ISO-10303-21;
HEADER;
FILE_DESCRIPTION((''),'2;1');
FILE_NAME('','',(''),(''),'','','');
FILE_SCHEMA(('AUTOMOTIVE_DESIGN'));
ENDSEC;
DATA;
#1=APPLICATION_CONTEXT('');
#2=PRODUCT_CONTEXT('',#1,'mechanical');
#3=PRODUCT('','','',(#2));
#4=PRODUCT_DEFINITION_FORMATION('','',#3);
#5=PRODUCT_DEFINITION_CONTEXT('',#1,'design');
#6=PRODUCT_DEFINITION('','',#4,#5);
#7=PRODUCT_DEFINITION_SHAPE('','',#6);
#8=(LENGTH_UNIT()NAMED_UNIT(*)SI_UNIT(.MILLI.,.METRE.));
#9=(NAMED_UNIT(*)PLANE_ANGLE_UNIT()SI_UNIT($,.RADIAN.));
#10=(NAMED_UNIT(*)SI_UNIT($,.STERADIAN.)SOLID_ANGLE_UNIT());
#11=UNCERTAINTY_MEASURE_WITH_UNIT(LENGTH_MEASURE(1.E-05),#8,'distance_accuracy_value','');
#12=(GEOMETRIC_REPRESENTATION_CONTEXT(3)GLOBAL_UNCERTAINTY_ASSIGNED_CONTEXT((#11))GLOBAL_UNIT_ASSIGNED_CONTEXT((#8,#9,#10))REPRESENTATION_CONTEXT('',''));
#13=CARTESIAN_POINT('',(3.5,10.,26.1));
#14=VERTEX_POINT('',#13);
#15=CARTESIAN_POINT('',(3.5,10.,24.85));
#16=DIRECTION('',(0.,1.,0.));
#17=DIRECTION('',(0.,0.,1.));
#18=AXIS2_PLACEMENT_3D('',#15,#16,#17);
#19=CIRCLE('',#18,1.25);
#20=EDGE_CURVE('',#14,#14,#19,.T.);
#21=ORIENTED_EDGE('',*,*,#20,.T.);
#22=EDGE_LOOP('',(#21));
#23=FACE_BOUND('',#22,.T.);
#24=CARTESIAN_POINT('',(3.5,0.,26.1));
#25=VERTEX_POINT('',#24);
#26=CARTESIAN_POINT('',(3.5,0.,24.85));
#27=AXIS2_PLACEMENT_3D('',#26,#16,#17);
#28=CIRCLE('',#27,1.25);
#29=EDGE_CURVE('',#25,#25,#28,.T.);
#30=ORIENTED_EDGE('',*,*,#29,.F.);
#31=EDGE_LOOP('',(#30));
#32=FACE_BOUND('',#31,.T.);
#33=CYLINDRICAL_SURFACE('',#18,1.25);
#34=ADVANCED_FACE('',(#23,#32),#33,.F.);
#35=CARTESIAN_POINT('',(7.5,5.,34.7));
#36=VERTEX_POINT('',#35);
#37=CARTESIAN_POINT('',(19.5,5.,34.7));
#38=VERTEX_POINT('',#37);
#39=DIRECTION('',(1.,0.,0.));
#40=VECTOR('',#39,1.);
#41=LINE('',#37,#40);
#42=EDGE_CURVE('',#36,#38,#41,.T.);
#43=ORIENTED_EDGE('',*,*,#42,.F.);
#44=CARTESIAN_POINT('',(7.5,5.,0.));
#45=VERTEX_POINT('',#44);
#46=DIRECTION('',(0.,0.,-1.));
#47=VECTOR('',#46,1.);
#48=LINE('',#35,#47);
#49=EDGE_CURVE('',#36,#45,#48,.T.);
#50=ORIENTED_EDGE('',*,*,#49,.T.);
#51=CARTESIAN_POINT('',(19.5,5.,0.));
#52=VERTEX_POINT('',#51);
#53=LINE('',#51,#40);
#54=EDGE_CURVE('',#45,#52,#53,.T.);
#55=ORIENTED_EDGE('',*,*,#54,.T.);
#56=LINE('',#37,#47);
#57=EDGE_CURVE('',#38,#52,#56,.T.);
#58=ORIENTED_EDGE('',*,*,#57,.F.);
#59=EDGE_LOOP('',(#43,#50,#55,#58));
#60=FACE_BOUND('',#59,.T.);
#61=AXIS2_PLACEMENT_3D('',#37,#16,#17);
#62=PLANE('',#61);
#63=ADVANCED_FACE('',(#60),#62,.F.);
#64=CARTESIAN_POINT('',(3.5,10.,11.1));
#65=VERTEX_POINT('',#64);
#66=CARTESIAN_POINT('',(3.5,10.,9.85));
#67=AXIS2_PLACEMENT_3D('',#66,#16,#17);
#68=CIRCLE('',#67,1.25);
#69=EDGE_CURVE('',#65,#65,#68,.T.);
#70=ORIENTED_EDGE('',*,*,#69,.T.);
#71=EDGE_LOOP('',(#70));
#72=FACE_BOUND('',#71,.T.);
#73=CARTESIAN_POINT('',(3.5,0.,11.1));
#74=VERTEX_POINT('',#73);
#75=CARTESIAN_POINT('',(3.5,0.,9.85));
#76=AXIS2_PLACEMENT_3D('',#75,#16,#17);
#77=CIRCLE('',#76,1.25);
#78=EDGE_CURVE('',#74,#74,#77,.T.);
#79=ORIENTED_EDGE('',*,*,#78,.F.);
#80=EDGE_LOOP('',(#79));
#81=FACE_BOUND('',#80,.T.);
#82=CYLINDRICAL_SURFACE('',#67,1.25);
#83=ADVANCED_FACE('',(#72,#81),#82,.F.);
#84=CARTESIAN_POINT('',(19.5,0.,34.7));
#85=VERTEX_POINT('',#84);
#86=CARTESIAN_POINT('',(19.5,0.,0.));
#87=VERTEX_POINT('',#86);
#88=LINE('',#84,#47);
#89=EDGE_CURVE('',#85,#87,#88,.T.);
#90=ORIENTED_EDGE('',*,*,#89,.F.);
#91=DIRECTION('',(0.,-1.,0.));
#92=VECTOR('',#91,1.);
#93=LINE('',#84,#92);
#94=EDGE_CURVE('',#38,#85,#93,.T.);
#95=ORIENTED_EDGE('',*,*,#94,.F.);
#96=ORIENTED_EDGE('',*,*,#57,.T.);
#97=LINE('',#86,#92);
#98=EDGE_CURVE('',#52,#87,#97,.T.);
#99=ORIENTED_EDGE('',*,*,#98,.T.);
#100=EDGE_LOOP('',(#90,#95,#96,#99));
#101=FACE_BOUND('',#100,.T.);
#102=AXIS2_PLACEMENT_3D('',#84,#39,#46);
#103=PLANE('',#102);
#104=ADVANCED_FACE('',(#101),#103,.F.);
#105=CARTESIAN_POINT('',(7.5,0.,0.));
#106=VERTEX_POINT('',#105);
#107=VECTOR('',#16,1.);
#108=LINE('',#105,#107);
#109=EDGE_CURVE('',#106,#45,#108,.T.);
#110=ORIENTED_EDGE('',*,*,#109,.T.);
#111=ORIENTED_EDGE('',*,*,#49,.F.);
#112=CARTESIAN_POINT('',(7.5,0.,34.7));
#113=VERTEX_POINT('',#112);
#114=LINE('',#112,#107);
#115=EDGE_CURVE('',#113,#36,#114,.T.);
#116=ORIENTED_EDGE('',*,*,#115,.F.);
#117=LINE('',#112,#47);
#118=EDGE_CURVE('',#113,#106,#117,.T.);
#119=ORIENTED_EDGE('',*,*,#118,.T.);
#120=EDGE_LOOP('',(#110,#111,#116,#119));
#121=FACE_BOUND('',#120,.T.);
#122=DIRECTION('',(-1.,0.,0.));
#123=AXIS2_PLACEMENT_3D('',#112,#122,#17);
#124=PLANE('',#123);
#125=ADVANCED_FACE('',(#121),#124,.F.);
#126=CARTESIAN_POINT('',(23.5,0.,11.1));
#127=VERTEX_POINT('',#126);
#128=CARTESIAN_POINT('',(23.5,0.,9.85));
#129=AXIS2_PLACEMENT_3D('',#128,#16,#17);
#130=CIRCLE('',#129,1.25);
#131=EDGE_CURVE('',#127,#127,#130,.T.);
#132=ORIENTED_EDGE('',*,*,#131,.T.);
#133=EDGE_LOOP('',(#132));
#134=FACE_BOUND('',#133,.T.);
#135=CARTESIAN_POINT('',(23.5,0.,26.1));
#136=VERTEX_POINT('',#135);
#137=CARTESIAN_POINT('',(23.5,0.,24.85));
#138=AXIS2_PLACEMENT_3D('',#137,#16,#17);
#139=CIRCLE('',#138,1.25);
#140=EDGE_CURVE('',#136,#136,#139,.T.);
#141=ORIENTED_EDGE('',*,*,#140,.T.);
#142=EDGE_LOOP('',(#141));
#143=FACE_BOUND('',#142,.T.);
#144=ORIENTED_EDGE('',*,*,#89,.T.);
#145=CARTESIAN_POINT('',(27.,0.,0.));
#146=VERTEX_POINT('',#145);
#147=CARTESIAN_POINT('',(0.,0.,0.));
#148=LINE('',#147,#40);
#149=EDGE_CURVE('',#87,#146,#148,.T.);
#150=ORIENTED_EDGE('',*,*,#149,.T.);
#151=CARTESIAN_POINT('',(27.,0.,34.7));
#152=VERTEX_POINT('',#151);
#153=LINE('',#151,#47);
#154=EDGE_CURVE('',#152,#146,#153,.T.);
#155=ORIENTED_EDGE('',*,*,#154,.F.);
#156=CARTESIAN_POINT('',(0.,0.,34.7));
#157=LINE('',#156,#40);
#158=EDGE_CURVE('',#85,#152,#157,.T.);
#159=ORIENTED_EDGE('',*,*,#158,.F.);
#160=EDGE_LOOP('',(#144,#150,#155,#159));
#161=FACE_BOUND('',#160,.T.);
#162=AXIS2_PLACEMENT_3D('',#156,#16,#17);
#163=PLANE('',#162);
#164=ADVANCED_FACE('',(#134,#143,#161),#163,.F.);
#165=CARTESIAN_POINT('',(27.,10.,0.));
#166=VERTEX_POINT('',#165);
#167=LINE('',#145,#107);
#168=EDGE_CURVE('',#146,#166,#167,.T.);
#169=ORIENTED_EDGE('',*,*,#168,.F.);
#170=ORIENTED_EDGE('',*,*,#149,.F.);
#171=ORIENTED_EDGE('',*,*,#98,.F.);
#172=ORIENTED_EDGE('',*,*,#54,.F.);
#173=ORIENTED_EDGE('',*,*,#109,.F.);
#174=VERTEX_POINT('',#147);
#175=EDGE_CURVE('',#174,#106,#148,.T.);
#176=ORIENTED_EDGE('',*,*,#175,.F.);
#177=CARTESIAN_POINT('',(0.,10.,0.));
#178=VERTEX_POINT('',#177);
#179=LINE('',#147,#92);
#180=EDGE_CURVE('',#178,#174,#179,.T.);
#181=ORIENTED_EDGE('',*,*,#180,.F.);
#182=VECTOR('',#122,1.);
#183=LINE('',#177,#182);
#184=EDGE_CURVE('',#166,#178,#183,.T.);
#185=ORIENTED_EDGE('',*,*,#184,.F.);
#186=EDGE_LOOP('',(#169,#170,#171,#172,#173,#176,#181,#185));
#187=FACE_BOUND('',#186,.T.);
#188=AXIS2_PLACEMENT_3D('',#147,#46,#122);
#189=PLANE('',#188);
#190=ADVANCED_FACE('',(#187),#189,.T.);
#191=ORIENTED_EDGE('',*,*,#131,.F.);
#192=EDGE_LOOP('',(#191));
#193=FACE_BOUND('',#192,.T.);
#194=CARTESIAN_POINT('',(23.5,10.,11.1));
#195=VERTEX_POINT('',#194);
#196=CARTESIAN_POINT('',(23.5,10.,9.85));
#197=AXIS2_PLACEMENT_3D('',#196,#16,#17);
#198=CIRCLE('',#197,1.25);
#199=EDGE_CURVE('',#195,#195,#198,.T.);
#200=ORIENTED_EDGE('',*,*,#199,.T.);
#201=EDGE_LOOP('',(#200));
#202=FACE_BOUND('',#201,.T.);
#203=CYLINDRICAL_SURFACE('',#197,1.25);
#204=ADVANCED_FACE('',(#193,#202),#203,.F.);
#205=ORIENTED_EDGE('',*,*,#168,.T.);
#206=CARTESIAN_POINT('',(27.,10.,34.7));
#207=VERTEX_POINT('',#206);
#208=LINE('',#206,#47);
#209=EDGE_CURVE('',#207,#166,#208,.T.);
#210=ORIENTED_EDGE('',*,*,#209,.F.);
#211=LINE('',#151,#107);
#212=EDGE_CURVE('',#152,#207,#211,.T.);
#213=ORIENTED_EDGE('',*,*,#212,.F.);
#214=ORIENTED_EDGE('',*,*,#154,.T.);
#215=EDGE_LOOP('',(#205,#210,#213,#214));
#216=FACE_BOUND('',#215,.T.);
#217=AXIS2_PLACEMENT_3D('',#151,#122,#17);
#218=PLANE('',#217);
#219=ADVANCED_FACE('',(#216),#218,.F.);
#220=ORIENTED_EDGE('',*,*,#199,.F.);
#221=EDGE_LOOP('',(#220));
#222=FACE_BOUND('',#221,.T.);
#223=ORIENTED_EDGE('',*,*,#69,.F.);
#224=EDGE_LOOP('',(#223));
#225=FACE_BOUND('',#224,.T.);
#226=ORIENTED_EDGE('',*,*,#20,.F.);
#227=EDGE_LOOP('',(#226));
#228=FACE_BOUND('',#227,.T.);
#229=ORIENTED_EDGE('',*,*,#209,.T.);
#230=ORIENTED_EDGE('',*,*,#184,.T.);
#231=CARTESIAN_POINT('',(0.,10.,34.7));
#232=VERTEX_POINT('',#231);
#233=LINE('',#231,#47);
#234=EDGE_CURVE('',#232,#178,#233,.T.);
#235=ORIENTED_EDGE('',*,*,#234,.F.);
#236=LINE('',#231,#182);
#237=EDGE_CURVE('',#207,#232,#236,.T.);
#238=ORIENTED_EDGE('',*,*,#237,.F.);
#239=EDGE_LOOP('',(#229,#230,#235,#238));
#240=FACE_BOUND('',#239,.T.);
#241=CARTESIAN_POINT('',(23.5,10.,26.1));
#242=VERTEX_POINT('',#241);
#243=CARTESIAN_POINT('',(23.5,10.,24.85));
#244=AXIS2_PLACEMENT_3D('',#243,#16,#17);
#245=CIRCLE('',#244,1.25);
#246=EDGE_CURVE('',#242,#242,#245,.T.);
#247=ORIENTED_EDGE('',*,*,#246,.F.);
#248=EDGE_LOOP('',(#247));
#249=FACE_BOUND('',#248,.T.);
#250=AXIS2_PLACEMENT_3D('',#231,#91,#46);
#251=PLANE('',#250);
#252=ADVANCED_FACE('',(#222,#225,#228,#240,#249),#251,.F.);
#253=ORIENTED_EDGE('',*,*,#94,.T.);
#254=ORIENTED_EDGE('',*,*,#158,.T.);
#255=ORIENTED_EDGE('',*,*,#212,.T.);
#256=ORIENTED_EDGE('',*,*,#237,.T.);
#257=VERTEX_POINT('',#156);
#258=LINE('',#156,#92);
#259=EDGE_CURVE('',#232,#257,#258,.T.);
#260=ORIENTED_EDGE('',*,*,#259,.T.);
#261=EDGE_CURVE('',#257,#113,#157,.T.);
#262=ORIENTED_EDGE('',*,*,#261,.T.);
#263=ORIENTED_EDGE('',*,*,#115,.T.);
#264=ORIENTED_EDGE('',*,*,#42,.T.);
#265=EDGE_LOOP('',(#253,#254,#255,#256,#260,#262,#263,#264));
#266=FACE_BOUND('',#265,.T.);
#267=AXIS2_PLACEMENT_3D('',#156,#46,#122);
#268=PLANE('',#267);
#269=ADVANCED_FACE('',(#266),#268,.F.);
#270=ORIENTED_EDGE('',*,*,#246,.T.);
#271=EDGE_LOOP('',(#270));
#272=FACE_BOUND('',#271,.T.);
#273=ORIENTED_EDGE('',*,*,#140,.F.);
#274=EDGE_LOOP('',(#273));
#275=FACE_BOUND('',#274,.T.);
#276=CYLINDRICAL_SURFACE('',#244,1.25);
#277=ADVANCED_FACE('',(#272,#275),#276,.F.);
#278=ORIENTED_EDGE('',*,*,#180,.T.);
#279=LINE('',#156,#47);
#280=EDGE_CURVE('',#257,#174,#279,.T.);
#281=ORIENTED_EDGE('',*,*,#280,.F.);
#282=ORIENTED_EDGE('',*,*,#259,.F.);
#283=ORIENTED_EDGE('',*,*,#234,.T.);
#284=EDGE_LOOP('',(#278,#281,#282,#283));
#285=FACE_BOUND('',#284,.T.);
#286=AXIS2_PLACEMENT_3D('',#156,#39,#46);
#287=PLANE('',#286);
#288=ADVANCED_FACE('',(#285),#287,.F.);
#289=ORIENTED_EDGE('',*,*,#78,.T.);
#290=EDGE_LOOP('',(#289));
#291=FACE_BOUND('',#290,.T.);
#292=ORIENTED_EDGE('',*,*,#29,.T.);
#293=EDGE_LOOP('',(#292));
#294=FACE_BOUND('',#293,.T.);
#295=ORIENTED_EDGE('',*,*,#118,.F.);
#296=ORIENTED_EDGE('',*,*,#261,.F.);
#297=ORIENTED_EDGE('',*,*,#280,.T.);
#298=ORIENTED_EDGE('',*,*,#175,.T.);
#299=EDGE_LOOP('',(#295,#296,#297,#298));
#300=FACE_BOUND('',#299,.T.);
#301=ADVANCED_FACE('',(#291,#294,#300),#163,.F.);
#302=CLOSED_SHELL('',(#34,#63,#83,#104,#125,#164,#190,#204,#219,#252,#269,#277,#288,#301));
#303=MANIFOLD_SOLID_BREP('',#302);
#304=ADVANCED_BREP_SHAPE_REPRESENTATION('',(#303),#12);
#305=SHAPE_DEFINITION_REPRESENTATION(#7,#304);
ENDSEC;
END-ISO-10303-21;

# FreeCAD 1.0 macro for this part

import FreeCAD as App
import Part
import Sketcher
from FreeCAD import Vector

doc = App.newDocument("Part")
params = doc.addObject("Spreadsheet::Sheet", "Params")
for row, (alias, value) in enumerate([
    ("sketch1_width", "27 mm"),
    ("sketch1_height", "10 mm"),
    ("pad1_length", "34.7 mm"),
    ("sketch2_width", "12 mm"),
    ("sketch2_height", "5 mm"),
    ("sketch3_diameter", "2.5 mm"),
    ("hole_diameter", "2.5 mm"),
], start=1):
    params.set(f"A{row}", alias)
    params.set(f"B{row}", "=" + value)
    params.setAlias(f"B{row}", alias)

body = doc.addObject("PartDesign::Body", "Body")

sketch1 = doc.addObject("Sketcher::SketchObject", "Sketch")
body.addObject(sketch1)
sketch1.AttachmentSupport = (doc.XY_Plane, [""])
sketch1.MapMode = "FlatFace"
sketch1.addGeometry([
    Part.LineSegment(Vector(0, 10, 0), Vector(0, 0, 0)),
    Part.LineSegment(Vector(0, 0, 0), Vector(27, 0, 0)),
    Part.LineSegment(Vector(27, 0, 0), Vector(27, 10, 0)),
    Part.LineSegment(Vector(27, 10, 0), Vector(0, 10, 0)),
], False)
sketch1.addConstraint([
    Sketcher.Constraint("Coincident", 0, 2, 1, 1),
    Sketcher.Constraint("Coincident", 1, 2, 2, 1),
    Sketcher.Constraint("Coincident", 2, 2, 3, 1),
    Sketcher.Constraint("Coincident", 3, 2, 0, 1),
    Sketcher.Constraint("Vertical", 0),
    Sketcher.Constraint("Horizontal", 1),
    Sketcher.Constraint("Vertical", 2),
    Sketcher.Constraint("Horizontal", 3),
    Sketcher.Constraint("Coincident", 0, 2, -1, 1),
    Sketcher.Constraint("DistanceX", 1, 1, 1, 2, 27.0),
    Sketcher.Constraint("DistanceY", 0, 2, 0, 1, 10.0),
])
sketch1.setExpression("Constraints[9]", "Params.sketch1_width")
sketch1.setExpression("Constraints[10]", "Params.sketch1_height")
pad1 = doc.addObject("PartDesign::Pad", "Pad")
body.addObject(pad1)
pad1.Profile = sketch1
pad1.setExpression("Length", "Params.pad1_length")

sketch2 = doc.addObject("Sketcher::SketchObject", "Sketch001")
body.addObject(sketch2)
sketch2.AttachmentSupport = (doc.XY_Plane, [""])
sketch2.MapMode = "FlatFace"
sketch2.addGeometry([
    Part.LineSegment(Vector(20, 5, 0), Vector(20, 0, 0)),
    Part.LineSegment(Vector(20, 0, 0), Vector(8, 0, 0)),
    Part.LineSegment(Vector(8, 0, 0), Vector(8, 5, 0)),
    Part.LineSegment(Vector(8, 5, 0), Vector(20, 5, 0)),
], False)
sketch2.addConstraint([
    Sketcher.Constraint("Coincident", 0, 2, 1, 1),
    Sketcher.Constraint("Coincident", 1, 2, 2, 1),
    Sketcher.Constraint("Coincident", 2, 2, 3, 1),
    Sketcher.Constraint("Coincident", 3, 2, 0, 1),
    Sketcher.Constraint("Vertical", 0),
    Sketcher.Constraint("Horizontal", 1),
    Sketcher.Constraint("Vertical", 2),
    Sketcher.Constraint("Horizontal", 3),
    Sketcher.Constraint("PointOnObject", 0, 2, -1),
    Sketcher.Constraint("DistanceX", 1, 2, 1, 1, 12.0),
    Sketcher.Constraint("DistanceY", 0, 2, 0, 1, 5.0),
    Sketcher.Constraint("DistanceX", -1, 1, 0, 2, 19.5),
])
sketch2.setExpression("Constraints[9]", "Params.sketch2_width")
sketch2.setExpression("Constraints[10]", "Params.sketch2_height")
pocket1 = doc.addObject("PartDesign::Pocket", "Pocket")
body.addObject(pocket1)
pocket1.Profile = sketch2
pocket1.Type = "ThroughAll"
pocket1.Reversed = True

sketch3 = doc.addObject("Sketcher::SketchObject", "Sketch002")
body.addObject(sketch3)
sketch3.AttachmentSupport = (doc.XZ_Plane, [""])
sketch3.MapMode = "FlatFace"
sketch3.AttachmentOffset = App.Placement(Vector(0, 0, -10), App.Rotation())
sketch3.addGeometry([
    Part.Circle(Vector(23.5, 24.9, 0), Vector(0, 0, 1), 1.2),
    Part.Circle(Vector(23.5, 9.8, 0), Vector(0, 0, 1), 1.2),
    Part.Circle(Vector(3.5, 24.9, 0), Vector(0, 0, 1), 1.2),
    Part.Circle(Vector(3.5, 9.8, 0), Vector(0, 0, 1), 1.2),
], False)
sketch3.addConstraint([
    Sketcher.Constraint("Equal", 0, 1),
    Sketcher.Constraint("Equal", 1, 2),
    Sketcher.Constraint("Equal", 2, 3),
    Sketcher.Constraint("Horizontal", 0, 3, 2, 3),
    Sketcher.Constraint("Horizontal", 1, 3, 3, 3),
    Sketcher.Constraint("Vertical", 0, 3, 1, 3),
    Sketcher.Constraint("Vertical", 2, 3, 3, 3),
    Sketcher.Constraint("Diameter", 0, 2.5),
    Sketcher.Constraint("DistanceY", 1, 3, 0, 3, 15.0),
    Sketcher.Constraint("DistanceX", 2, 3, 0, 3, 20.0),
    Sketcher.Constraint("DistanceX", -1, 1, 0, 3, 23.5),
    Sketcher.Constraint("DistanceY", -1, 1, 0, 3, 24.85),
])
sketch3.setExpression("Constraints[7]", "Params.sketch3_diameter")
doc.recompute()
hole = doc.addObject("PartDesign::Hole", "Hole")
body.addObject(hole)
hole.Profile = sketch3
hole.ThreadType = "None"
hole.setExpression("Diameter", "Params.hole_diameter")
hole.DepthType = "ThroughAll"
hole.Reversed = True

doc.recompute()
